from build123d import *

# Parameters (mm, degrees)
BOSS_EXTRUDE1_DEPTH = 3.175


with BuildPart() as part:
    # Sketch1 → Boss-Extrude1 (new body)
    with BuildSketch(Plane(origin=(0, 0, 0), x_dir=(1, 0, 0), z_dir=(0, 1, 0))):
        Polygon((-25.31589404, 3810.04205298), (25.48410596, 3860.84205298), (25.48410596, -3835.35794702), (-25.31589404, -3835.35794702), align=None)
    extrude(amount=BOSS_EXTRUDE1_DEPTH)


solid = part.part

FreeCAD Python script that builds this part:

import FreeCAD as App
import Part
import Sketcher
Q = App.Units.Quantity


def add_polygon(sketch, points):
    """Adds a closed chain of lines whose ends are joined by coincident constraints."""
    first, n = sketch.GeometryCount, len(points)
    for a, b in zip(points, points[1:] + points[:1]):
        sketch.addGeometry(Part.LineSegment(App.Vector(*a, 0), App.Vector(*b, 0)), False)
    for i in range(n):
        sketch.addConstraint(Sketcher.Constraint("Coincident", first + i, 2, first + (i + 1) % n, 1))

doc = App.newDocument("Part")
body = doc.addObject("PartDesign::Body", "Body")

sketch1 = body.newObject("Sketcher::SketchObject", "Sketch")
sketch1.AttachmentSupport = (doc.getObject("XZ_Plane"), [""])
sketch1.MapMode = "FlatFace"
add_polygon(sketch1, [(25, -3861), (-25, -3810), (-25, 3835), (25, 3835)])
sketch1.addConstraint(Sketcher.Constraint("Vertical", 1))
sketch1.addConstraint(Sketcher.Constraint("Horizontal", 2))
sketch1.addConstraint(Sketcher.Constraint("Vertical", 3))
sketch1.addConstraint(Sketcher.Constraint("DistanceX", 2, 1, 2, 2, Q("2 in")))
sketch1.addConstraint(Sketcher.Constraint("DistanceY", 1, 1, 1, 2, Q("301 in")))
sketch1.addConstraint(Sketcher.Constraint("DistanceY", 3, 2, 3, 1, Q("303 in")))
sketch1.addConstraint(Sketcher.Constraint("DistanceX", 0, 2, -1, 1, Q("25.315894 mm")))
sketch1.addConstraint(Sketcher.Constraint("DistanceY", 0, 2, -1, 1, Q("3810.042053 mm")))
pad1 = body.newObject("PartDesign::Pad", "Pad")
pad1.Profile = sketch1
pad1.Length = Q("0.125 in")
pad1.Reversed = True

doc.recompute()
